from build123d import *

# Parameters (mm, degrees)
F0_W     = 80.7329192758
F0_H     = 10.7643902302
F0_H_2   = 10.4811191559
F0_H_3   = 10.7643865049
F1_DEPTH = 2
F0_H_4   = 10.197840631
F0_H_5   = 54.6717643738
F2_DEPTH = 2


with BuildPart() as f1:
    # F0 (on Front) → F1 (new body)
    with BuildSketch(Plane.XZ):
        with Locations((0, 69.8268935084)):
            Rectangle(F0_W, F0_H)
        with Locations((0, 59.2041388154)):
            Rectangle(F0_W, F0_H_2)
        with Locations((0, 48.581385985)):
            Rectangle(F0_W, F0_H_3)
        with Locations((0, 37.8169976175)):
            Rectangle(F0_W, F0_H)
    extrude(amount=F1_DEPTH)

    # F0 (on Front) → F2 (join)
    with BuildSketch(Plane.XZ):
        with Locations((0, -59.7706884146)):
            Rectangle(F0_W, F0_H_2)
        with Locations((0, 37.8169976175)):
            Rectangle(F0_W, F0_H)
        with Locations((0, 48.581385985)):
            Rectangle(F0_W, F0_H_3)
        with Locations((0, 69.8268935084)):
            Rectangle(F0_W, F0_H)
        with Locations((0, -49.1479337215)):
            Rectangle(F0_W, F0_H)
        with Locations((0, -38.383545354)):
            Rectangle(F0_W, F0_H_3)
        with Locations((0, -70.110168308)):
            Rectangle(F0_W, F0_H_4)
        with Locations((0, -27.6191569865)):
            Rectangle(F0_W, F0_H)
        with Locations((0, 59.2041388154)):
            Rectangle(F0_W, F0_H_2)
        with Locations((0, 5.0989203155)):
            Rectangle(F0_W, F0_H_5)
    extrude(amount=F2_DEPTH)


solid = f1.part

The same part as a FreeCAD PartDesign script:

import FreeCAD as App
import Part
import Sketcher

V = App.Vector
Q = App.Units.Quantity


def add_polygon(sketch, points):
    """Adds a closed chain of lines whose ends are joined by coincident constraints."""
    first, n = sketch.GeometryCount, len(points)
    for a, b in zip(points, points[1:] + points[:1]):
        sketch.addGeometry(Part.LineSegment(App.Vector(*a, 0), App.Vector(*b, 0)), False)
    for i in range(n):
        sketch.addConstraint(Sketcher.Constraint("Coincident", first + i, 2, first + (i + 1) % n, 1))

doc = App.newDocument("Part")
body = doc.addObject("PartDesign::Body", "Body")

# Sketch on XZ plane
sketch1 = body.newObject("Sketcher::SketchObject", "Sketch")
sketch1.AttachmentSupport = (doc.getObject("XZ_Plane"), [""])
sketch1.MapMode = "FlatFace"
add_polygon(sketch1, [(-40, 75), (-40, 32), (40, 32), (40, 75)])  # lines 0-3
sketch1.addConstraint(Sketcher.Constraint("Vertical", 0))
sketch1.addConstraint(Sketcher.Constraint("Horizontal", 1))
sketch1.addConstraint(Sketcher.Constraint("Vertical", 2))
sketch1.addConstraint(Sketcher.Constraint("Horizontal", 3))
sketch1.addConstraint(Sketcher.Constraint("DistanceX", 1, 1, 1, 2, Q("80.732919 mm")))
sketch1.addConstraint(Sketcher.Constraint("DistanceY", 0, 2, 0, 1, Q("42.774286 mm")))
sketch1.addConstraint(Sketcher.Constraint("DistanceX", 0, 2, -1, 1, Q("40.36646 mm")))
sketch1.addConstraint(Sketcher.Constraint("DistanceY", -1, 1, 2, 2, Q("75.209089 mm")))
pad1 = body.newObject("PartDesign::Pad", "Pad")
pad1.Profile = sketch1
pad1.Length = 2

# Sketch on XZ plane
sketch2 = body.newObject("Sketcher::SketchObject", "Sketch001")
sketch2.AttachmentSupport = (doc.getObject("XZ_Plane"), [""])
sketch2.MapMode = "FlatFace"
add_polygon(sketch2, [(-40, -75), (40, -75), (40, 75), (-40, 75)])  # lines 0-3
sketch2.addConstraint(Sketcher.Constraint("Horizontal", 0))
sketch2.addConstraint(Sketcher.Constraint("Vertical", 1))
sketch2.addConstraint(Sketcher.Constraint("Horizontal", 2))
sketch2.addConstraint(Sketcher.Constraint("Vertical", 3))
sketch2.addConstraint(Sketcher.Constraint("Symmetric", 0, 2, 2, 2, -1, 1))
sketch2.addConstraint(Sketcher.Constraint("DistanceX", 0, 1, 0, 2, Q("80.732919 mm")))
sketch2.addConstraint(Sketcher.Constraint("DistanceY", 1, 1, 1, 2, Q("150.418177 mm")))
pad2 = body.newObject("PartDesign::Pad", "Pad001")
pad2.Profile = sketch2
pad2.Length = 2

doc.recompute()
